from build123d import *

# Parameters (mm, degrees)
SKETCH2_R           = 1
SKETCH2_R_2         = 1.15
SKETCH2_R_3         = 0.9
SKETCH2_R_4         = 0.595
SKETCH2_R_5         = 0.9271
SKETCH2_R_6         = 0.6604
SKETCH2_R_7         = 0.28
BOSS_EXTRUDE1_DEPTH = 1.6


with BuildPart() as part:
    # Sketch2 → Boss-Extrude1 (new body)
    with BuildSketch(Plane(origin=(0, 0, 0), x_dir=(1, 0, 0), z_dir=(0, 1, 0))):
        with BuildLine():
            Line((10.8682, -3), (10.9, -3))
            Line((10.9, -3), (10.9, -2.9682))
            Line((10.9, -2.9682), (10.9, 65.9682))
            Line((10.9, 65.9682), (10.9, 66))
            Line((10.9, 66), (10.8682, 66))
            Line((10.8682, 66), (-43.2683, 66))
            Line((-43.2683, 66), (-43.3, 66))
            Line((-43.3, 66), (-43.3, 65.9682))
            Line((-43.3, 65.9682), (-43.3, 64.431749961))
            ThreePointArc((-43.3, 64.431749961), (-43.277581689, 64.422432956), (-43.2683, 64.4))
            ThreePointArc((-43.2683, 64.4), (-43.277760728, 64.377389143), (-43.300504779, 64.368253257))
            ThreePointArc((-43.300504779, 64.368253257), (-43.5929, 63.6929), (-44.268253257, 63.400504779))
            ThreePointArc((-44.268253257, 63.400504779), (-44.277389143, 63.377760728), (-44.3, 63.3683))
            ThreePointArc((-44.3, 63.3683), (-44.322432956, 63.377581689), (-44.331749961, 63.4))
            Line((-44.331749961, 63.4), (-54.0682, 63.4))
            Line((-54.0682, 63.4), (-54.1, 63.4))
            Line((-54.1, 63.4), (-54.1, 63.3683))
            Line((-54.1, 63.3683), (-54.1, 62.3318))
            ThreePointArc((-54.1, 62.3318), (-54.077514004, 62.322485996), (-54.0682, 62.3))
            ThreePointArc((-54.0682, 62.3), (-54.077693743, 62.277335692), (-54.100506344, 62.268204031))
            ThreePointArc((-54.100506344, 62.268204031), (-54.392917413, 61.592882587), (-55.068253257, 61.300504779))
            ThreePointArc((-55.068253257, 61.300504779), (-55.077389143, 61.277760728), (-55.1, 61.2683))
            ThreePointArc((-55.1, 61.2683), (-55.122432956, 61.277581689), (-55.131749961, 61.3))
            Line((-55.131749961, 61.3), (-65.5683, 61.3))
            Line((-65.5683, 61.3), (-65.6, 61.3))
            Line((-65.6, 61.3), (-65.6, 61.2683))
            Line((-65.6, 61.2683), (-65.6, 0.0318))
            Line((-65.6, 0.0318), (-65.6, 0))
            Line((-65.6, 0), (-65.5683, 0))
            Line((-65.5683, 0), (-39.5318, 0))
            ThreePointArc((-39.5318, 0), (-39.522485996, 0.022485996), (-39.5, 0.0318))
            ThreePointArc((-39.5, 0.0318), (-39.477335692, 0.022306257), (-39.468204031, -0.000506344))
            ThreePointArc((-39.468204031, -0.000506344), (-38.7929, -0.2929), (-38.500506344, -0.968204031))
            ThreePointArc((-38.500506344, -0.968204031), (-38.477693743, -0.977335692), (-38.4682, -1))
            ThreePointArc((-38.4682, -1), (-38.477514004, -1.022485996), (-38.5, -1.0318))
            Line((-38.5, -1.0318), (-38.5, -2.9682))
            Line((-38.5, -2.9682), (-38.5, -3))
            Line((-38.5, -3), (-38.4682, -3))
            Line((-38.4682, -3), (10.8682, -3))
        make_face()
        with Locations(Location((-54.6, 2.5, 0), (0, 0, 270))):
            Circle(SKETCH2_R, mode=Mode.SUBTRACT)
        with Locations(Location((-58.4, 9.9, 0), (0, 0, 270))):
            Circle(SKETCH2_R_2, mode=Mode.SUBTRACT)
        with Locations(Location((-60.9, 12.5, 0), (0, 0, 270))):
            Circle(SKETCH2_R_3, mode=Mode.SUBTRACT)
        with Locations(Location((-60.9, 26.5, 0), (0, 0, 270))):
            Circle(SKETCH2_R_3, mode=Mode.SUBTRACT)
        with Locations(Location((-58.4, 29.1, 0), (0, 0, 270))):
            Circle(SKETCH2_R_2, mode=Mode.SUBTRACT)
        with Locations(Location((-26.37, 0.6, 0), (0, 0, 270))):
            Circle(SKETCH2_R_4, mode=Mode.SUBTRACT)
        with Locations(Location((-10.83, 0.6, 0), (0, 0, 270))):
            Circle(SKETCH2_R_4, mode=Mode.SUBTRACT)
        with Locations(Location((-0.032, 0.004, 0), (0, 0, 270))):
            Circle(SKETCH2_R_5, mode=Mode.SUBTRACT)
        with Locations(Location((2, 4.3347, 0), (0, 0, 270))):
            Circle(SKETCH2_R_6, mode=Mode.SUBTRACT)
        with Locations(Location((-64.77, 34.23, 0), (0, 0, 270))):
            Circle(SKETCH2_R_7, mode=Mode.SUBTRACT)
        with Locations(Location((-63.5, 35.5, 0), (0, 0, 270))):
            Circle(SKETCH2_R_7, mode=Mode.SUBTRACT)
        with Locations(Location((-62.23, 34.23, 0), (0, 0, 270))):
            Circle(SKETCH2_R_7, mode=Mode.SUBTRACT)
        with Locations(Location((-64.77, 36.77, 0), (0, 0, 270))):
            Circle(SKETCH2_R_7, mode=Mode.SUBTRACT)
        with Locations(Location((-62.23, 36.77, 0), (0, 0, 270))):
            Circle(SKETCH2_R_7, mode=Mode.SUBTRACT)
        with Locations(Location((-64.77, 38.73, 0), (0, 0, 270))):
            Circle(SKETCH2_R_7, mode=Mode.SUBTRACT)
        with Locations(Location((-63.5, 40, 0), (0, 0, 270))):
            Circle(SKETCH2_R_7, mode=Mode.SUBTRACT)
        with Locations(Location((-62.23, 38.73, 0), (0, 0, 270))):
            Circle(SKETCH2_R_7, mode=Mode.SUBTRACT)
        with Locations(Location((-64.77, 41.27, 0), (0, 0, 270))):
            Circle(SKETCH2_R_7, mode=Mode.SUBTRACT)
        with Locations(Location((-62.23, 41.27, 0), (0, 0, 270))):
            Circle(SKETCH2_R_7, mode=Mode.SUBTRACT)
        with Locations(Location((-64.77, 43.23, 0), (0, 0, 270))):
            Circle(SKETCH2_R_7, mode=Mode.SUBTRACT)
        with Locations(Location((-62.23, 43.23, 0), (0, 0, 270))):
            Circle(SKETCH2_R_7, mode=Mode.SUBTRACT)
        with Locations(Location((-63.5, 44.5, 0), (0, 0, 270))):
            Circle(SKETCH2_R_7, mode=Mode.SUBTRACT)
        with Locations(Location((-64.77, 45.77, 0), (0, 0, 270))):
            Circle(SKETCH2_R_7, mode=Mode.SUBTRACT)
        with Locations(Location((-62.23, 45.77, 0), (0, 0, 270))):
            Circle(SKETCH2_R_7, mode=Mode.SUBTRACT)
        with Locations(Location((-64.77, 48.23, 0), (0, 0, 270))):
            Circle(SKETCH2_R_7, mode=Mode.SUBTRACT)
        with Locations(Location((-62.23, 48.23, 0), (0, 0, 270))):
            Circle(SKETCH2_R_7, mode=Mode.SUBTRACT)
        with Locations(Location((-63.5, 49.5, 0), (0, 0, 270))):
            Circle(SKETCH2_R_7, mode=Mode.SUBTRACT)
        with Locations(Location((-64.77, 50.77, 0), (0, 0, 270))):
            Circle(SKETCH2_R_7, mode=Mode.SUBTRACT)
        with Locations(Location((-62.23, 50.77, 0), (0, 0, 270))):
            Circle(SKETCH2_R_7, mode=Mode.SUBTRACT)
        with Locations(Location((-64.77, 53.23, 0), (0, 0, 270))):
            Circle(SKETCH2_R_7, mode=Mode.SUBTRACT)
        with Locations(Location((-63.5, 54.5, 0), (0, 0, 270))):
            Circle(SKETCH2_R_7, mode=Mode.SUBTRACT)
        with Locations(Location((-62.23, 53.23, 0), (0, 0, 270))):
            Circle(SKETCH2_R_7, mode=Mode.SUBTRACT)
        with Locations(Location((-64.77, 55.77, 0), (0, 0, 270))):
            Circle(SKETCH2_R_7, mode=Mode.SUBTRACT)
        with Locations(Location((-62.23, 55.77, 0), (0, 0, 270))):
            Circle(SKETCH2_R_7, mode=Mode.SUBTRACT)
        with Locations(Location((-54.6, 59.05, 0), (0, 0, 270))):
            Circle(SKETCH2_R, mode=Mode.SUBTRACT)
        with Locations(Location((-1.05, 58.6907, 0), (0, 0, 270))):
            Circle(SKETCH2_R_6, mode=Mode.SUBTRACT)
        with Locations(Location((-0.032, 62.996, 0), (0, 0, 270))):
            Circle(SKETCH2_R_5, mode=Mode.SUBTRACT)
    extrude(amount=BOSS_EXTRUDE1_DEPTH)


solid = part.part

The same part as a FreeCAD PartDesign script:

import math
import FreeCAD as App
import Part
import Sketcher
from FreeCAD import Vector

doc = App.newDocument("Part")
body = doc.addObject("PartDesign::Body", "Body")

sketch1 = body.newObject("Sketcher::SketchObject", "Sketch")
sketch1.AttachmentSupport = (doc.getObject("XZ_Plane"), [""])
sketch1.MapMode = "FlatFace"
sketch1.addGeometry([
    Part.LineSegment(Vector(10.9, 3, 0), Vector(10.9, -66, 0)),
    Part.LineSegment(Vector(10.9, -66, 0), Vector(-43.3, -66, 0)),
    Part.LineSegment(Vector(-43.3, -66, 0), Vector(-43.3, -64.432, 0)),
    Part.ArcOfCircle(Part.Circle(Vector(-43.3, -64.4, 0), Vector(0, 0, 1), 0.032), math.radians(-90), math.radians(0)),
    Part.ArcOfCircle(Part.Circle(Vector(-43.3, -64.4, 0), Vector(0, 0, 1), 0.032), math.radians(0), math.radians(91)),
    Part.ArcOfCircle(Part.Circle(Vector(-44.3, -64.4, 0), Vector(0, 0, 1), 1), math.radians(2), math.radians(88)),
    Part.ArcOfCircle(Part.Circle(Vector(-44.3, -63.4, 0), Vector(0, 0, 1), 0.032), math.radians(-1), math.radians(90)),
    Part.ArcOfCircle(Part.Circle(Vector(-44.3, -63.4, 0), Vector(0, 0, 1), 0.032), math.radians(90), math.radians(180)),
    Part.LineSegment(Vector(-44.332, -63.4, 0), Vector(-54.1, -63.4, 0)),
    Part.LineSegment(Vector(-54.1, -63.4, 0), Vector(-54.1, -62.332, 0)),
    Part.ArcOfCircle(Part.Circle(Vector(-54.1, -62.3, 0), Vector(0, 0, 1), 0.032), math.radians(-90), math.radians(0)),
    Part.ArcOfCircle(Part.Circle(Vector(-54.1, -62.3, 0), Vector(0, 0, 1), 0.032), math.radians(0), math.radians(91)),
    Part.ArcOfCircle(Part.Circle(Vector(-55.1, -62.3, 0), Vector(0, 0, 1), 1), math.radians(2), math.radians(88)),
    Part.ArcOfCircle(Part.Circle(Vector(-55.1, -61.3, 0), Vector(0, 0, 1), 0.032), math.radians(-1), math.radians(90)),
    Part.ArcOfCircle(Part.Circle(Vector(-55.1, -61.3, 0), Vector(0, 0, 1), 0.032), math.radians(90), math.radians(180)),
    Part.LineSegment(Vector(-55.132, -61.3, 0), Vector(-65.6, -61.3, 0)),
    Part.LineSegment(Vector(-65.6, -61.3, 0), Vector(-65.6, 0, 0)),
    Part.LineSegment(Vector(-65.6, 0, 0), Vector(-39.532, 0, 0)),
    Part.ArcOfCircle(Part.Circle(Vector(-39.5, 0, 0), Vector(0, 0, 1), 0.032), math.radians(180), math.radians(270)),
    Part.ArcOfCircle(Part.Circle(Vector(-39.5, 0, 0), Vector(0, 0, 1), 0.032), math.radians(-90), math.radians(1)),
    Part.ArcOfCircle(Part.Circle(Vector(-39.5, 1, 0), Vector(0, 0, 1), 1), math.radians(-88), math.radians(-2)),
    Part.ArcOfCircle(Part.Circle(Vector(-38.5, 1, 0), Vector(0, 0, 1), 0.032), math.radians(-91), math.radians(0)),
    Part.ArcOfCircle(Part.Circle(Vector(-38.5, 1, 0), Vector(0, 0, 1), 0.032), math.radians(0), math.radians(90)),
    Part.LineSegment(Vector(-38.5, 1.032, 0), Vector(-38.5, 3, 0)),
    Part.LineSegment(Vector(-38.5, 3, 0), Vector(10.9, 3, 0)),
    Part.Circle(Vector(-54.6, -2.5, 0), Vector(0, 0, 1), 1),
    Part.Circle(Vector(-58.4, -9.9, 0), Vector(0, 0, 1), 1.15),
    Part.Circle(Vector(-60.9, -12.5, 0), Vector(0, 0, 1), 0.9),
    Part.Circle(Vector(-60.9, -26.5, 0), Vector(0, 0, 1), 0.9),
    Part.Circle(Vector(-58.4, -29.1, 0), Vector(0, 0, 1), 1.15),
    Part.Circle(Vector(-26.37, -0.6, 0), Vector(0, 0, 1), 0.595),
    Part.Circle(Vector(-10.83, -0.6, 0), Vector(0, 0, 1), 0.595),
    Part.Circle(Vector(-0.032, -0.004, 0), Vector(0, 0, 1), 0.927),
    Part.Circle(Vector(2, -4.335, 0), Vector(0, 0, 1), 0.66),
    Part.Circle(Vector(-64.77, -34.23, 0), Vector(0, 0, 1), 0.28),
    Part.Circle(Vector(-63.5, -35.5, 0), Vector(0, 0, 1), 0.28),
    Part.Circle(Vector(-62.23, -34.23, 0), Vector(0, 0, 1), 0.28),
    Part.Circle(Vector(-64.77, -36.77, 0), Vector(0, 0, 1), 0.28),
    Part.Circle(Vector(-62.23, -36.77, 0), Vector(0, 0, 1), 0.28),
    Part.Circle(Vector(-64.77, -38.73, 0), Vector(0, 0, 1), 0.28),
    Part.Circle(Vector(-62.23, -38.73, 0), Vector(0, 0, 1), 0.28),
    Part.Circle(Vector(-63.5, -40, 0), Vector(0, 0, 1), 0.28),
    Part.Circle(Vector(-64.77, -41.27, 0), Vector(0, 0, 1), 0.28),
    Part.Circle(Vector(-62.23, -41.27, 0), Vector(0, 0, 1), 0.28),
    Part.Circle(Vector(-64.77, -43.23, 0), Vector(0, 0, 1), 0.28),
    Part.Circle(Vector(-62.23, -43.23, 0), Vector(0, 0, 1), 0.28),
    Part.Circle(Vector(-63.5, -44.5, 0), Vector(0, 0, 1), 0.28),
    Part.Circle(Vector(-64.77, -45.77, 0), Vector(0, 0, 1), 0.28),
    Part.Circle(Vector(-62.23, -45.77, 0), Vector(0, 0, 1), 0.28),
    Part.Circle(Vector(-64.77, -48.23, 0), Vector(0, 0, 1), 0.28),
    Part.Circle(Vector(-63.5, -49.5, 0), Vector(0, 0, 1), 0.28),
    Part.Circle(Vector(-62.23, -48.23, 0), Vector(0, 0, 1), 0.28),
    Part.Circle(Vector(-64.77, -50.77, 0), Vector(0, 0, 1), 0.28),
    Part.Circle(Vector(-62.23, -50.77, 0), Vector(0, 0, 1), 0.28),
    Part.Circle(Vector(-64.77, -53.23, 0), Vector(0, 0, 1), 0.28),
    Part.Circle(Vector(-62.23, -53.23, 0), Vector(0, 0, 1), 0.28),
    Part.Circle(Vector(-63.5, -54.5, 0), Vector(0, 0, 1), 0.28),
    Part.Circle(Vector(-64.77, -55.77, 0), Vector(0, 0, 1), 0.28),
    Part.Circle(Vector(-62.23, -55.77, 0), Vector(0, 0, 1), 0.28),
    Part.Circle(Vector(-54.6, -59.05, 0), Vector(0, 0, 1), 1),
    Part.Circle(Vector(-1.05, -58.691, 0), Vector(0, 0, 1), 0.66),
    Part.Circle(Vector(-0.032, -62.996, 0), Vector(0, 0, 1), 0.927),
], False)
sketch1.addConstraint([
    Sketcher.Constraint("Coincident", 0, 2, 1, 1),
    Sketcher.Constraint("Coincident", 1, 2, 2, 1),
    Sketcher.Constraint("Coincident", 2, 2, 3, 1),
    Sketcher.Constraint("Tangent", 3, 2, 4, 1),
    Sketcher.Constraint("Coincident", 4, 2, 5, 1),
    Sketcher.Constraint("Coincident", 5, 2, 6, 1),
    Sketcher.Constraint("Tangent", 6, 2, 7, 1),
    Sketcher.Constraint("Coincident", 7, 2, 8, 1),
    Sketcher.Constraint("Coincident", 8, 2, 9, 1),
    Sketcher.Constraint("Coincident", 9, 2, 10, 1),
    Sketcher.Constraint("Tangent", 10, 2, 11, 1),
    Sketcher.Constraint("Coincident", 11, 2, 12, 1),
    Sketcher.Constraint("Coincident", 12, 2, 13, 1),
    Sketcher.Constraint("Tangent", 13, 2, 14, 1),
    Sketcher.Constraint("Coincident", 14, 2, 15, 1),
    Sketcher.Constraint("Coincident", 15, 2, 16, 1),
    Sketcher.Constraint("Coincident", 16, 2, 17, 1),
    Sketcher.Constraint("Coincident", 17, 2, 18, 1),
    Sketcher.Constraint("Tangent", 18, 2, 19, 1),
    Sketcher.Constraint("Coincident", 19, 2, 20, 1),
    Sketcher.Constraint("Coincident", 20, 2, 21, 1),
    Sketcher.Constraint("Tangent", 21, 2, 22, 1),
    Sketcher.Constraint("Coincident", 22, 2, 23, 1),
    Sketcher.Constraint("Coincident", 23, 2, 24, 1),
    Sketcher.Constraint("Coincident", 24, 2, 0, 1),
    Sketcher.Constraint("Vertical", 0),
    Sketcher.Constraint("Horizontal", 1),
    Sketcher.Constraint("Vertical", 2),
    Sketcher.Constraint("Horizontal", 8),
    Sketcher.Constraint("Vertical", 9),
    Sketcher.Constraint("Horizontal", 15),
    Sketcher.Constraint("Vertical", 16),
    Sketcher.Constraint("Horizontal", 17),
    Sketcher.Constraint("Vertical", 23),
    Sketcher.Constraint("Horizontal", 24),
    Sketcher.Constraint("Equal", 3, 4),
    Sketcher.Constraint("Equal", 4, 6),
    Sketcher.Constraint("Equal", 6, 7),
    Sketcher.Constraint("Equal", 10, 11),
    Sketcher.Constraint("Equal", 5, 12),
    Sketcher.Constraint("Equal", 7, 13),
    Sketcher.Constraint("Equal", 13, 14),
    Sketcher.Constraint("Equal", 11, 18),
    Sketcher.Constraint("Equal", 18, 19),
    Sketcher.Constraint("Equal", 12, 20),
    Sketcher.Constraint("Equal", 19, 21),
    Sketcher.Constraint("Equal", 21, 22),
    Sketcher.Constraint("Equal", 27, 28),
    Sketcher.Constraint("Equal", 26, 29),
    Sketcher.Constraint("Equal", 30, 31),
    Sketcher.Constraint("Equal", 34, 35),
    Sketcher.Constraint("Equal", 35, 36),
    Sketcher.Constraint("Equal", 36, 37),
    Sketcher.Constraint("Equal", 37, 38),
    Sketcher.Constraint("Equal", 38, 39),
    Sketcher.Constraint("Equal", 39, 40),
    Sketcher.Constraint("Equal", 40, 41),
    Sketcher.Constraint("Equal", 41, 42),
    Sketcher.Constraint("Equal", 42, 43),
    Sketcher.Constraint("Equal", 43, 44),
    Sketcher.Constraint("Equal", 44, 45),
    Sketcher.Constraint("Equal", 45, 46),
    Sketcher.Constraint("Equal", 46, 47),
    Sketcher.Constraint("Equal", 47, 48),
    Sketcher.Constraint("Equal", 48, 49),
    Sketcher.Constraint("Equal", 49, 50),
    Sketcher.Constraint("Equal", 50, 51),
    Sketcher.Constraint("Equal", 51, 52),
    Sketcher.Constraint("Equal", 52, 53),
    Sketcher.Constraint("Equal", 53, 54),
    Sketcher.Constraint("Equal", 54, 55),
    Sketcher.Constraint("Equal", 55, 56),
    Sketcher.Constraint("Equal", 56, 57),
    Sketcher.Constraint("Equal", 57, 58),
    Sketcher.Constraint("Equal", 25, 59),
    Sketcher.Constraint("Equal", 33, 60),
    Sketcher.Constraint("Equal", 32, 61),
    Sketcher.Constraint("PointOnObject", 18, 3, -1),
    Sketcher.Constraint("PointOnObject", 16, 2, -1),
    Sketcher.Constraint("Horizontal", 30, 3, 31, 3),
    Sketcher.Constraint("Horizontal", 34, 3, 36, 3),
    Sketcher.Constraint("Horizontal", 37, 3, 38, 3),
    Sketcher.Constraint("Horizontal", 39, 3, 40, 3),
    Sketcher.Constraint("Horizontal", 42, 3, 43, 3),
    Sketcher.Constraint("Horizontal", 44, 3, 45, 3),
    Sketcher.Constraint("Horizontal", 47, 3, 48, 3),
    Sketcher.Constraint("Horizontal", 49, 3, 51, 3),
    Sketcher.Constraint("Horizontal", 52, 3, 53, 3),
    Sketcher.Constraint("Horizontal", 54, 3, 55, 3),
    Sketcher.Constraint("Horizontal", 57, 3, 58, 3),
    Sketcher.Constraint("Horizontal", 4, 3, 3, 2),
    Sketcher.Constraint("Horizontal", 11, 3, 10, 2),
    Sketcher.Constraint("Horizontal", 22, 3, 21, 2),
    Sketcher.Constraint("Vertical", 27, 3, 28, 3),
    Sketcher.Constraint("Vertical", 26, 3, 29, 3),
    Sketcher.Constraint("Vertical", 34, 3, 37, 3),
    Sketcher.Constraint("Vertical", 36, 3, 38, 3),
    Sketcher.Constraint("Vertical", 37, 3, 39, 3),
    Sketcher.Constraint("Vertical", 38, 3, 40, 3),
    Sketcher.Constraint("Vertical", 35, 3, 41, 3),
    Sketcher.Constraint("Vertical", 39, 3, 42, 3),
    Sketcher.Constraint("Vertical", 40, 3, 43, 3),
    Sketcher.Constraint("Vertical", 42, 3, 44, 3),
    Sketcher.Constraint("Vertical", 43, 3, 45, 3),
    Sketcher.Constraint("Vertical", 41, 3, 46, 3),
    Sketcher.Constraint("Vertical", 44, 3, 47, 3),
    Sketcher.Constraint("Vertical", 45, 3, 48, 3),
    Sketcher.Constraint("Vertical", 47, 3, 49, 3),
    Sketcher.Constraint("Vertical", 46, 3, 50, 3),
    Sketcher.Constraint("Vertical", 48, 3, 51, 3),
    Sketcher.Constraint("Vertical", 49, 3, 52, 3),
    Sketcher.Constraint("Vertical", 51, 3, 53, 3),
    Sketcher.Constraint("Vertical", 52, 3, 54, 3),
    Sketcher.Constraint("Vertical", 53, 3, 55, 3),
    Sketcher.Constraint("Vertical", 50, 3, 56, 3),
    Sketcher.Constraint("Vertical", 54, 3, 57, 3),
    Sketcher.Constraint("Vertical", 55, 3, 58, 3),
    Sketcher.Constraint("Vertical", 25, 3, 59, 3),
    Sketcher.Constraint("Vertical", 32, 3, 61, 3),
    Sketcher.Constraint("Vertical", 7, 3, 6, 2),
    Sketcher.Constraint("Vertical", 11, 3, 8, 2),
    Sketcher.Constraint("Vertical", 14, 3, 13, 2),
    Sketcher.Constraint("Vertical", 19, 3, 18, 2),
    Sketcher.Constraint("Vertical", 21, 3, 22, 2),
    Sketcher.Constraint("Diameter", 25, 2.0),
    Sketcher.Constraint("Diameter", 26, 2.3),
    Sketcher.Constraint("Diameter", 27, 1.8),
    Sketcher.Constraint("Diameter", 30, 1.19),
    Sketcher.Constraint("Diameter", 34, 0.56),
    Sketcher.Constraint("DistanceY", 0, 2, 0, 1, 69.0),
    Sketcher.Constraint("DistanceX", 1, 2, 1, 1, 54.2),
    Sketcher.Constraint("DistanceX", 24, 1, 24, 2, 49.4),
    Sketcher.Constraint("DistanceY", 16, 1, 16, 2, 61.3),
    Sketcher.Constraint("DistanceY", -1, 1, 21, 3, 1.0),
    Sketcher.Constraint("DistanceX", -1, 1, 33, 3, 2.0),
    Sketcher.Constraint("DistanceY", 41, 3, -1, 1, 40.0),
    Sketcher.Constraint("DistanceY", 0, 2, -1, 1, 66.0),
    Sketcher.Constraint("Diameter", 32, 1.8542),
    Sketcher.Constraint("Diameter", 33, 1.3208),
    Sketcher.Constraint("DistanceY", 3, 3, -1, 1, 64.4),
    Sketcher.Constraint("DistanceX", 6, 3, -1, 1, 44.3),
    Sketcher.Constraint("DistanceX", 10, 3, -1, 1, 54.1),
    Sketcher.Constraint("DistanceY", 10, 3, -1, 1, 62.3),
    Sketcher.Constraint("DistanceX", 13, 3, -1, 1, 55.1),
    Sketcher.Constraint("DistanceX", 18, 3, -1, 1, 39.5),
    Sketcher.Constraint("DistanceX", 21, 3, -1, 1, 38.5),
    Sketcher.Constraint("DistanceX", 25, 3, -1, 1, 54.6),
    Sketcher.Constraint("DistanceY", 25, 3, -1, 1, 2.5),
    Sketcher.Constraint("DistanceX", 26, 3, -1, 1, 58.4),
    Sketcher.Constraint("DistanceY", 26, 3, -1, 1, 9.9),
    Sketcher.Constraint("DistanceX", 27, 3, -1, 1, 60.9),
    Sketcher.Constraint("DistanceY", 27, 3, -1, 1, 12.5),
    Sketcher.Constraint("DistanceY", 28, 3, -1, 1, 26.5),
    Sketcher.Constraint("DistanceY", 29, 3, -1, 1, 29.1),
    Sketcher.Constraint("DistanceY", 30, 3, -1, 1, 0.6),
    Sketcher.Constraint("DistanceX", 35, 3, -1, 1, 63.5),
    Sketcher.Constraint("DistanceY", 35, 3, -1, 1, 35.5),
    Sketcher.Constraint("DistanceY", 46, 3, -1, 1, 44.5),
    Sketcher.Constraint("DistanceY", 50, 3, -1, 1, 49.5),
    Sketcher.Constraint("DistanceY", 56, 3, -1, 1, 54.5),
    Sketcher.Constraint("DistanceY", 7, 2, -1, 1, 63.4),
    Sketcher.Constraint("DistanceX", 15, 2, -1, 1, 65.6),
    Sketcher.Constraint("Radius", 10, 0.0318),
    Sketcher.Constraint("DistanceX", 30, 3, -1, 1, 26.37),
    Sketcher.Constraint("DistanceX", 31, 3, -1, 1, 10.83),
    Sketcher.Constraint("DistanceX", 34, 3, -1, 1, 64.77),
    Sketcher.Constraint("DistanceY", 34, 3, -1, 1, 34.23),
    Sketcher.Constraint("DistanceX", 36, 3, -1, 1, 62.23),
    Sketcher.Constraint("DistanceY", 37, 3, -1, 1, 36.77),
    Sketcher.Constraint("DistanceY", 39, 3, -1, 1, 38.73),
    Sketcher.Constraint("DistanceY", 42, 3, -1, 1, 41.27),
    Sketcher.Constraint("DistanceY", 44, 3, -1, 1, 43.23),
    Sketcher.Constraint("DistanceY", 47, 3, -1, 1, 45.77),
    Sketcher.Constraint("DistanceY", 49, 3, -1, 1, 48.23),
    Sketcher.Constraint("DistanceY", 52, 3, -1, 1, 50.77),
    Sketcher.Constraint("DistanceY", 54, 3, -1, 1, 53.23),
    Sketcher.Constraint("DistanceY", 57, 3, -1, 1, 55.77),
    Sketcher.Constraint("DistanceY", 59, 3, -1, 1, 59.05),
    Sketcher.Constraint("DistanceX", 60, 3, -1, 1, 1.05),
    Sketcher.Constraint("Radius", 3, 0.03175),
    Sketcher.Constraint("DistanceX", 32, 3, -1, 1, 0.032),
    Sketcher.Constraint("DistanceY", 32, 3, -1, 1, 0.004),
    Sketcher.Constraint("DistanceY", 61, 3, -1, 1, 62.996),
    Sketcher.Constraint("Radius", 5, 1.000023),
    Sketcher.Constraint("DistanceY", 33, 3, -1, 1, 4.3347),
    Sketcher.Constraint("DistanceY", 60, 3, -1, 1, 58.6907),
    Sketcher.Constraint("DistanceX", 3, 2, -1, 1, 43.2683),
    Sketcher.Constraint("DistanceY", 6, 2, -1, 1, 63.3683),
    Sketcher.Constraint("DistanceY", 13, 2, -1, 1, 61.2683),
    Sketcher.Constraint("DistanceX", 5, 3, -1, 1, 44.300023),
    Sketcher.Constraint("DistanceY", 5, 3, -1, 1, 64.400023),
    Sketcher.Constraint("DistanceX", 12, 3, -1, 1, 55.100023),
    Sketcher.Constraint("DistanceY", 12, 3, -1, 1, 62.300023),
    Sketcher.Constraint("DistanceX", 20, 3, -1, 1, 39.500023),
    Sketcher.Constraint("DistanceY", -1, 1, 20, 3, 1.000023),
])
pad1 = body.newObject("PartDesign::Pad", "Pad")
pad1.Profile = sketch1
pad1.Length = 1.6
pad1.Reversed = True

doc.recompute()
